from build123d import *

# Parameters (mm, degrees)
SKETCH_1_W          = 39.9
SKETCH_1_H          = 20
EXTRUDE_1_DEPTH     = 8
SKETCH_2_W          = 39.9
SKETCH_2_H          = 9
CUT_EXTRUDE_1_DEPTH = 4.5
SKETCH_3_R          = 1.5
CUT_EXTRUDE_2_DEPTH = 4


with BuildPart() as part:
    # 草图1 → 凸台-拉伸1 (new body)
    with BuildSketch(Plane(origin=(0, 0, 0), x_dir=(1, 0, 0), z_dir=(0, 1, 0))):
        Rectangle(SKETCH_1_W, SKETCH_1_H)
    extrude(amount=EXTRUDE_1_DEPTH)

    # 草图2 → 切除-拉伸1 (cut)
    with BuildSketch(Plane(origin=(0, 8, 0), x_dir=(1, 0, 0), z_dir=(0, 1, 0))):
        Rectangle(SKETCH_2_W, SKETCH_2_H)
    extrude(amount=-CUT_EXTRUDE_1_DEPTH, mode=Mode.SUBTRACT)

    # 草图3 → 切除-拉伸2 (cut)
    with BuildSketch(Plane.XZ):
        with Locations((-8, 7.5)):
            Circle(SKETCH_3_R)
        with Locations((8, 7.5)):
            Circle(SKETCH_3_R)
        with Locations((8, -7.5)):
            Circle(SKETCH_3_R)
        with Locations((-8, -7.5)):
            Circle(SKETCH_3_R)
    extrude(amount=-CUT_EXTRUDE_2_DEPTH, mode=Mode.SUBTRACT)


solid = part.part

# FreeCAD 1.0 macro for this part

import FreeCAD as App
import Part
import Sketcher

V = App.Vector

doc = App.newDocument("Part")
params = doc.addObject("Spreadsheet::Sheet", "Params")
for row, (alias, value) in enumerate([
    ("sketch1_height", "20 mm"),
    ("sketch1_width", "39.9 mm"),
    ("pad1_length", "8 mm"),
    ("sketch2_height", "9 mm"),
    ("sketch2_width", "39.9 mm"),
    ("pocket1_length", "4.5 mm"),
    ("sketch3_diameter", "3 mm"),
    ("pocket2_length", "4 mm"),
], start=1):
    params.set(f"A{row}", alias)
    params.set(f"B{row}", "=" + value)
    params.setAlias(f"B{row}", alias)

body = doc.addObject("PartDesign::Body", "Body")

sketch1 = doc.addObject("Sketcher::SketchObject", "Sketch")
body.addObject(sketch1)
sketch1.AttachmentSupport = (doc.XZ_Plane, [""])
sketch1.MapMode = "FlatFace"
sketch1.addGeometry([
    Part.LineSegment(V(-19.95, -10, 0), V(-19.95, 10, 0)),
    Part.LineSegment(V(-19.95, 10, 0), V(19.95, 10, 0)),
    Part.LineSegment(V(19.95, 10, 0), V(19.95, -10, 0)),
    Part.LineSegment(V(19.95, -10, 0), V(-19.95, -10, 0)),
], False)
sketch1.addConstraint([
    Sketcher.Constraint("Coincident", 0, 2, 1, 1),
    Sketcher.Constraint("Coincident", 1, 2, 2, 1),
    Sketcher.Constraint("Coincident", 2, 2, 3, 1),
    Sketcher.Constraint("Coincident", 3, 2, 0, 1),
    Sketcher.Constraint("Vertical", 0),
    Sketcher.Constraint("Horizontal", 1),
    Sketcher.Constraint("Vertical", 2),
    Sketcher.Constraint("Horizontal", 3),
    Sketcher.Constraint("Symmetric", 0, 2, 2, 2, -1, 1),
    Sketcher.Constraint("DistanceY", 0, 1, 0, 2, 20.0),
    Sketcher.Constraint("DistanceX", 1, 1, 1, 2, 39.9),
])
sketch1.setExpression("Constraints[9]", "Params.sketch1_height")
sketch1.setExpression("Constraints[10]", "Params.sketch1_width")
pad1 = doc.addObject("PartDesign::Pad", "Pad")
body.addObject(pad1)
pad1.Profile = sketch1
pad1.setExpression("Length", "Params.pad1_length")
pad1.Reversed = True

sketch2 = doc.addObject("Sketcher::SketchObject", "Sketch001")
body.addObject(sketch2)
sketch2.AttachmentSupport = (doc.XZ_Plane, [""])
sketch2.MapMode = "FlatFace"
sketch2.AttachmentOffset = App.Placement(V(0, 0, -8), App.Rotation())
sketch2.addGeometry([
    Part.LineSegment(V(-19.95, -4.5, 0), V(-19.95, 4.5, 0)),
    Part.LineSegment(V(-19.95, 4.5, 0), V(19.95, 4.5, 0)),
    Part.LineSegment(V(19.95, 4.5, 0), V(19.95, -4.5, 0)),
    Part.LineSegment(V(19.95, -4.5, 0), V(-19.95, -4.5, 0)),
], False)
sketch2.addConstraint([
    Sketcher.Constraint("Coincident", 0, 2, 1, 1),
    Sketcher.Constraint("Coincident", 1, 2, 2, 1),
    Sketcher.Constraint("Coincident", 2, 2, 3, 1),
    Sketcher.Constraint("Coincident", 3, 2, 0, 1),
    Sketcher.Constraint("Vertical", 0),
    Sketcher.Constraint("Horizontal", 1),
    Sketcher.Constraint("Vertical", 2),
    Sketcher.Constraint("Horizontal", 3),
    Sketcher.Constraint("Symmetric", 0, 2, 2, 2, -1, 1),
    Sketcher.Constraint("DistanceY", 0, 1, 0, 2, 9.0),
    Sketcher.Constraint("DistanceX", 1, 1, 1, 2, 39.9),
])
sketch2.setExpression("Constraints[9]", "Params.sketch2_height")
sketch2.setExpression("Constraints[10]", "Params.sketch2_width")
pocket1 = doc.addObject("PartDesign::Pocket", "Pocket")
body.addObject(pocket1)
pocket1.Profile = sketch2
pocket1.setExpression("Length", "Params.pocket1_length")
pocket1.Reversed = True

sketch3 = doc.addObject("Sketcher::SketchObject", "Sketch002")
body.addObject(sketch3)
sketch3.AttachmentSupport = (doc.XZ_Plane, [""])
sketch3.MapMode = "FlatFace"
sketch3.addGeometry([
    Part.Circle(V(-8, 7.5, 0), V(0, 0, 1), 1.5),
    Part.Circle(V(8, 7.5, 0), V(0, 0, 1), 1.5),
    Part.Circle(V(8, -7.5, 0), V(0, 0, 1), 1.5),
    Part.Circle(V(-8, -7.5, 0), V(0, 0, 1), 1.5),
], False)
sketch3.addConstraint([
    Sketcher.Constraint("Equal", 0, 1),
    Sketcher.Constraint("Equal", 1, 2),
    Sketcher.Constraint("Equal", 2, 3),
    Sketcher.Constraint("Symmetric", 0, 3, 2, 3, -1, 1),
    Sketcher.Constraint("Symmetric", 1, 3, 3, 3, -1, 1),
    Sketcher.Constraint("Symmetric", 0, 3, 1, 3, -2),
    Sketcher.Constraint("Diameter", 0, 3.0),
    Sketcher.Constraint("DistanceX", 0, 3, -1, 1, 8.0),
    Sketcher.Constraint("DistanceY", 2, 3, 1, 3, 15.0),
])
sketch3.setExpression("Constraints[6]", "Params.sketch3_diameter")
pocket2 = doc.addObject("PartDesign::Pocket", "Pocket001")
body.addObject(pocket2)
pocket2.Profile = sketch3
pocket2.setExpression("Length", "Params.pocket2_length")

doc.recompute()
